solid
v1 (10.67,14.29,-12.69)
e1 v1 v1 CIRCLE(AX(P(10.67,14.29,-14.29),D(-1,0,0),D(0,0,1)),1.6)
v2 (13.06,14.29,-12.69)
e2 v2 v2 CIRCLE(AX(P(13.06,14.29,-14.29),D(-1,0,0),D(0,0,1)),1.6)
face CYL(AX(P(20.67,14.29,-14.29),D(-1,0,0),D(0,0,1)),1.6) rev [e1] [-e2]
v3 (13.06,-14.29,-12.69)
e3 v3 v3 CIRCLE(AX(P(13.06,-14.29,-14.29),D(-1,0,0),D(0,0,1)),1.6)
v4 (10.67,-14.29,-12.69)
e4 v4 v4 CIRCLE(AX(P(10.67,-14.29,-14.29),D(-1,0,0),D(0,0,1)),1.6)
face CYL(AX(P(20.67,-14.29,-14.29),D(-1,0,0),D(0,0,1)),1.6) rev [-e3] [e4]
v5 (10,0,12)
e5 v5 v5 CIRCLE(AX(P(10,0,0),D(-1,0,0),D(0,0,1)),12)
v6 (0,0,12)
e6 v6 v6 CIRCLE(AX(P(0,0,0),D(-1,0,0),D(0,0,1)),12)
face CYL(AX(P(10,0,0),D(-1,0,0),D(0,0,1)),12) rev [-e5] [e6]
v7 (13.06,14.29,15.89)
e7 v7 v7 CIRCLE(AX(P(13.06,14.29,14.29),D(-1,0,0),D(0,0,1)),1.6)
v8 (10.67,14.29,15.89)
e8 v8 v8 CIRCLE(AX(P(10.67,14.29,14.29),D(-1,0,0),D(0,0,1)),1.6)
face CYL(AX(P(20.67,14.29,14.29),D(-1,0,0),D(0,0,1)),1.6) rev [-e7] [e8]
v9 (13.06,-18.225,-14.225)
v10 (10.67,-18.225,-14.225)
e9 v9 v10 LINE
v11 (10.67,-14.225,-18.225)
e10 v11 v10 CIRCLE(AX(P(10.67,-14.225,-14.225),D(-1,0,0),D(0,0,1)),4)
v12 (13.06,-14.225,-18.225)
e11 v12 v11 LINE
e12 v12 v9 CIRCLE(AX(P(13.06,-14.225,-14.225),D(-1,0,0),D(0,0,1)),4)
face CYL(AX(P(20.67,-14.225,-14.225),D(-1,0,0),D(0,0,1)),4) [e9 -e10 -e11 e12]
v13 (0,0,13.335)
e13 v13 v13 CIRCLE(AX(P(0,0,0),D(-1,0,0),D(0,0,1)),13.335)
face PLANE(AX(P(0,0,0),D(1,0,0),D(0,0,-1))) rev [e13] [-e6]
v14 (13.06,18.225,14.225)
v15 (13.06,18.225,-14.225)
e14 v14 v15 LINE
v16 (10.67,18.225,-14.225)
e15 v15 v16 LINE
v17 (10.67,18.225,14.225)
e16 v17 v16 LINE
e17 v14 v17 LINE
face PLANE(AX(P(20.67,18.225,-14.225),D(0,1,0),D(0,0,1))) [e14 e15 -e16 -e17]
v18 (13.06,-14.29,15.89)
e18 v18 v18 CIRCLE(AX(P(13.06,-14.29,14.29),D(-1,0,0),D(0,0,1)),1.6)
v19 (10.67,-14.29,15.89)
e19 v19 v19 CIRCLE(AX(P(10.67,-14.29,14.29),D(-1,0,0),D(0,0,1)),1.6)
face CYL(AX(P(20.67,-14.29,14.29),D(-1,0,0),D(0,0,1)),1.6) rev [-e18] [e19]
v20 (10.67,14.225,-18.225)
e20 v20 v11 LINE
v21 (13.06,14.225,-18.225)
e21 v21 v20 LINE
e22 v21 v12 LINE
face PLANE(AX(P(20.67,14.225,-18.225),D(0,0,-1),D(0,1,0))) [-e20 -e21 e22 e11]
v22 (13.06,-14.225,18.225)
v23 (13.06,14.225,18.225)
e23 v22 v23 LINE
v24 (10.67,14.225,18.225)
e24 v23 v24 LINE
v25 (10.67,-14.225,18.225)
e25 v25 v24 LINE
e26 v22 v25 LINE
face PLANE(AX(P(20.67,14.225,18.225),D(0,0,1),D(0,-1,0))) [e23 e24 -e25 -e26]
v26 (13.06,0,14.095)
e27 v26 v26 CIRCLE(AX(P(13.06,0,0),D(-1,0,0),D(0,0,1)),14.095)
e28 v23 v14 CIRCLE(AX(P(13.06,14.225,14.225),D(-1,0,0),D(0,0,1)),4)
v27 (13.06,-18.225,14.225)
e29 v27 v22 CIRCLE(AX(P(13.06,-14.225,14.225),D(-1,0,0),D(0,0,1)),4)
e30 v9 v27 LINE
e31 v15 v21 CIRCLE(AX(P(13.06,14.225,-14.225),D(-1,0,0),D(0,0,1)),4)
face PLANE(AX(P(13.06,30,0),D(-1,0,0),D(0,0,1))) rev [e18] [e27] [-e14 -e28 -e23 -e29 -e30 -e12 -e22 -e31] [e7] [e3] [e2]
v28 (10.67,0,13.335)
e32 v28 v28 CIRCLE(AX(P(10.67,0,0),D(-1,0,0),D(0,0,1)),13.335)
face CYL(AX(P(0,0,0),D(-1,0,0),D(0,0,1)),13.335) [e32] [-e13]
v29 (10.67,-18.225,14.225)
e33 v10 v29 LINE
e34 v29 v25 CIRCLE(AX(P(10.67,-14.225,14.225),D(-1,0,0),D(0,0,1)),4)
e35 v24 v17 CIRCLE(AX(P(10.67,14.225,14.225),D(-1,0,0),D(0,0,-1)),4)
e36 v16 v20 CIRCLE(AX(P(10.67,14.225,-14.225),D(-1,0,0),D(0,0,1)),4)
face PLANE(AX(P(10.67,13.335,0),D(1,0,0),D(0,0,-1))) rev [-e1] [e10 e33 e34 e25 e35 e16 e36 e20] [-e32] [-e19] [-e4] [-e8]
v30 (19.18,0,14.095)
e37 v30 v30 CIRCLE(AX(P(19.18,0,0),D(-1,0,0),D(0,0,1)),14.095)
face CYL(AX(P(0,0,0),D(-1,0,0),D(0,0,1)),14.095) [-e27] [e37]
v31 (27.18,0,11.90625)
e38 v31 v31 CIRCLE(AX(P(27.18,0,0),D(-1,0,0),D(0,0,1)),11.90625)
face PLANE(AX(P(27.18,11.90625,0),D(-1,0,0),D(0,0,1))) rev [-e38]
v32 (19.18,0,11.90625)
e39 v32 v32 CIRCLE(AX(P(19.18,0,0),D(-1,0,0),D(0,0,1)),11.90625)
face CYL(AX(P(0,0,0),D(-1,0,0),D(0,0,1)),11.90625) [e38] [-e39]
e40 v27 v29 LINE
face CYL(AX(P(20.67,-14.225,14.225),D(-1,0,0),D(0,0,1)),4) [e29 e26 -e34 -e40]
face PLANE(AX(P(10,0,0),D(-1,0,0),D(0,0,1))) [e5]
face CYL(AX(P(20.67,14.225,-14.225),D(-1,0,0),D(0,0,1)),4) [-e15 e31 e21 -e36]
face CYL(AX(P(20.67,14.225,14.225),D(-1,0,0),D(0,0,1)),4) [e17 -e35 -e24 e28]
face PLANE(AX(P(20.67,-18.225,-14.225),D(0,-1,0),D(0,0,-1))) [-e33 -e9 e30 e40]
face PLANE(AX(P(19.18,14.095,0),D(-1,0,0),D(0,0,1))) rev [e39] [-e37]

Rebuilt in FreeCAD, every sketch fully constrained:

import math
import FreeCAD as App
import Part
import Sketcher
from FreeCAD import Vector
Q = App.Units.Quantity


def add_polygon(sketch, points):
    """Adds a closed chain of lines whose ends are joined by coincident constraints."""
    first, n = sketch.GeometryCount, len(points)
    for a, b in zip(points, points[1:] + points[:1]):
        sketch.addGeometry(Part.LineSegment(App.Vector(*a, 0), App.Vector(*b, 0)), False)
    for i in range(n):
        sketch.addConstraint(Sketcher.Constraint("Coincident", first + i, 2, first + (i + 1) % n, 1))

doc = App.newDocument("Part")
params = doc.addObject("Spreadsheet::Sheet", "Params")
for row, (alias, value) in enumerate([
    ("sketch1_width", "8 mm"),
    ("sketch1_width2", "27.18 mm"),
    ("sketch1_width3", "6.12 mm"),
    ("sketch1_width4", "2.39 mm"),
    ("revolution_angle", "360 deg"),
    ("sketch2_radius", "4 mm"),
    ("sketch2_diameter", "3.2 mm"),
    ("sketch2_width", "79.82 mm"),
    ("sketch2_width2", "28.45 mm"),
    ("pocket1_length", "10 mm"),
    ("sketch3_diameter", "24 mm"),
    ("pocket2_length", "10 mm"),
], start=1):
    params.set(f"A{row}", alias)
    params.set(f"B{row}", "=" + value)
    params.setAlias(f"B{row}", alias)

body = doc.addObject("PartDesign::Body", "Body")

sketch1 = body.newObject("Sketcher::SketchObject", "Sketch")
sketch1.AttachmentSupport = (doc.getObject("XY_Plane"), [""])
sketch1.MapMode = "FlatFace"
add_polygon(sketch1, [(0, 13.335), (0, 0), (27.18, 0), (27.18, 11.90625), (19.18, 11.90625), (19.18, 14.095), (13.06, 14.095), (13.06, 30), (10.67, 30), (10.67, 13.335)])
sketch1.addConstraint([
    Sketcher.Constraint("Vertical", 0),
    Sketcher.Constraint("Horizontal", 1),
    Sketcher.Constraint("Vertical", 2),
    Sketcher.Constraint("Horizontal", 3),
    Sketcher.Constraint("Vertical", 4),
    Sketcher.Constraint("Horizontal", 5),
    Sketcher.Constraint("Vertical", 6),
    Sketcher.Constraint("Horizontal", 7),
    Sketcher.Constraint("Vertical", 8),
    Sketcher.Constraint("Horizontal", 9),
    Sketcher.Constraint("Coincident", 0, 2, -1, 1),
    Sketcher.Constraint("DistanceX", 3, 2, 3, 1, Q("8 mm")),
    Sketcher.Constraint("DistanceY", -1, 1, 6, 2, Q("30 mm")),
    Sketcher.Constraint("DistanceX", 1, 1, 1, 2, Q("27.18 mm")),
    Sketcher.Constraint("DistanceX", 5, 2, 5, 1, Q("6.12 mm")),
    Sketcher.Constraint("DistanceX", 7, 2, 7, 1, Q("2.39 mm")),
    Sketcher.Constraint("DistanceY", 0, 2, 0, 1, Q("13.335 mm")),
    Sketcher.Constraint("DistanceY", 6, 1, 6, 2, Q("15.905 mm")),
    Sketcher.Constraint("DistanceY", 2, 1, 2, 2, Q("11.90625 mm")),
])
sketch1.setExpression("Constraints[21]", "Params.sketch1_width")
sketch1.setExpression("Constraints[23]", "Params.sketch1_width2")
sketch1.setExpression("Constraints[24]", "Params.sketch1_width3")
sketch1.setExpression("Constraints[25]", "Params.sketch1_width4")
revolution = body.newObject("PartDesign::Revolution", "Revolution")
revolution.Profile = sketch1
revolution.ReferenceAxis = (sketch1, ["H_Axis"])
revolution.setExpression("Angle", "Params.revolution_angle")

sketch2 = body.newObject("Sketcher::SketchObject", "Sketch001")
sketch2.AttachmentSupport = (doc.getObject("YZ_Plane"), [""])
sketch2.MapMode = "FlatFace"
sketch2.AttachmentOffset = App.Placement(Vector(0, 0, 10.67), App.Rotation())
add_polygon(sketch2, [(39.91, -39.91), (-39.91, -39.91), (-39.91, 39.91), (39.91, 39.91)])
sketch2.addGeometry(Part.ArcOfCircle(Part.Circle(Vector(14.225, -14.225, 0), Vector(0, 0, 1), 4), math.radians(-90), math.radians(0)), False)
sketch2.addGeometry(Part.LineSegment(Vector(18.225, -14.225, 0), Vector(18.225, 14.225, 0)), False)
sketch2.addGeometry(Part.ArcOfCircle(Part.Circle(Vector(14.225, 14.225, 0), Vector(0, 0, 1), 4), math.radians(0), math.radians(90)), False)
sketch2.addGeometry(Part.LineSegment(Vector(14.225, 18.225, 0), Vector(-14.225, 18.225, 0)), False)
sketch2.addGeometry(Part.ArcOfCircle(Part.Circle(Vector(-14.225, 14.225, 0), Vector(0, 0, 1), 4), math.radians(90), math.radians(180)), False)
sketch2.addGeometry(Part.LineSegment(Vector(-18.225, 14.225, 0), Vector(-18.225, -14.225, 0)), False)
sketch2.addGeometry(Part.ArcOfCircle(Part.Circle(Vector(-14.225, -14.225, 0), Vector(0, 0, 1), 4), math.radians(180), math.radians(270)), False)
sketch2.addGeometry(Part.LineSegment(Vector(-14.225, -18.225, 0), Vector(14.225, -18.225, 0)), False)
sketch2.addGeometry(Part.Circle(Vector(14.29, -14.29, 0), Vector(0, 0, 1), 1.6), False)
sketch2.addGeometry(Part.Circle(Vector(14.29, 14.29, 0), Vector(0, 0, 1), 1.6), False)
sketch2.addGeometry(Part.Circle(Vector(-14.29, 14.29, 0), Vector(0, 0, 1), 1.6), False)
sketch2.addGeometry(Part.Circle(Vector(-14.29, -14.29, 0), Vector(0, 0, 1), 1.6), False)
sketch2.addConstraint([
    Sketcher.Constraint("Tangent", 4, 2, 5, 1),
    Sketcher.Constraint("Tangent", 5, 2, 6, 1),
    Sketcher.Constraint("Tangent", 6, 2, 7, 1),
    Sketcher.Constraint("Tangent", 7, 2, 8, 1),
    Sketcher.Constraint("Tangent", 8, 2, 9, 1),
    Sketcher.Constraint("Tangent", 9, 2, 10, 1),
    Sketcher.Constraint("Tangent", 10, 2, 11, 1),
    Sketcher.Constraint("Tangent", 11, 2, 4, 1),
    Sketcher.Constraint("Horizontal", 0),
    Sketcher.Constraint("Vertical", 1),
    Sketcher.Constraint("Horizontal", 2),
    Sketcher.Constraint("Vertical", 3),
    Sketcher.Constraint("Vertical", 5),
    Sketcher.Constraint("Horizontal", 7),
    Sketcher.Constraint("Vertical", 9),
    Sketcher.Constraint("Horizontal", 11),
    Sketcher.Constraint("Equal", 4, 6),
    Sketcher.Constraint("Equal", 6, 8),
    Sketcher.Constraint("Equal", 8, 10),
    Sketcher.Constraint("Equal", 12, 13),
    Sketcher.Constraint("Equal", 13, 14),
    Sketcher.Constraint("Equal", 14, 15),
    Sketcher.Constraint("Symmetric", 4, 3, 8, 3, -1, 1),
    Sketcher.Constraint("Symmetric", 12, 3, 14, 3, -1, 1),
    Sketcher.Constraint("Symmetric", 13, 3, 15, 3, -1, 1),
    Sketcher.Constraint("Symmetric", 0, 2, 2, 2, -1, 1),
    Sketcher.Constraint("Symmetric", 13, 3, 14, 3, -2),
    Sketcher.Constraint("Equal", 2, 1),
    Sketcher.Constraint("Equal", 11, 5),
    Sketcher.Constraint("Radius", 4, Q("4 mm")),
    Sketcher.Constraint("Diameter", 12, Q("3.2 mm")),
    Sketcher.Constraint("DistanceX", 0, 2, 0, 1, Q("79.82 mm")),
    Sketcher.Constraint("DistanceX", 7, 2, 7, 1, Q("28.45 mm")),
    Sketcher.Constraint("DistanceX", 0, 2, 12, 3, Q("54.2 mm")),
    Sketcher.Constraint("DistanceY", 12, 3, 2, 2, Q("54.2 mm")),
])
sketch2.setExpression("Constraints[33]", "Params.sketch2_radius")
sketch2.setExpression("Constraints[34]", "Params.sketch2_diameter")
sketch2.setExpression("Constraints[35]", "Params.sketch2_width")
sketch2.setExpression("Constraints[36]", "Params.sketch2_width2")
pocket1 = body.newObject("PartDesign::Pocket", "Pocket")
pocket1.Profile = sketch2
pocket1.setExpression("Length", "Params.pocket1_length")
pocket1.Reversed = True

sketch3 = body.newObject("Sketcher::SketchObject", "Sketch002")
sketch3.AttachmentSupport = (doc.getObject("YZ_Plane"), [""])
sketch3.MapMode = "FlatFace"
sketch3.addGeometry(Part.Circle(Vector(0, 0, 0), Vector(0, 0, 1), 12), False)
sketch3.addConstraint([
    Sketcher.Constraint("Coincident", 0, 3, -1, 1),
    Sketcher.Constraint("Diameter", 0, Q("24 mm")),
])
sketch3.setExpression("Constraints[1]", "Params.sketch3_diameter")
pocket2 = body.newObject("PartDesign::Pocket", "Pocket001")
pocket2.Profile = sketch3
pocket2.setExpression("Length", "Params.pocket2_length")
pocket2.Reversed = True

doc.recompute()
